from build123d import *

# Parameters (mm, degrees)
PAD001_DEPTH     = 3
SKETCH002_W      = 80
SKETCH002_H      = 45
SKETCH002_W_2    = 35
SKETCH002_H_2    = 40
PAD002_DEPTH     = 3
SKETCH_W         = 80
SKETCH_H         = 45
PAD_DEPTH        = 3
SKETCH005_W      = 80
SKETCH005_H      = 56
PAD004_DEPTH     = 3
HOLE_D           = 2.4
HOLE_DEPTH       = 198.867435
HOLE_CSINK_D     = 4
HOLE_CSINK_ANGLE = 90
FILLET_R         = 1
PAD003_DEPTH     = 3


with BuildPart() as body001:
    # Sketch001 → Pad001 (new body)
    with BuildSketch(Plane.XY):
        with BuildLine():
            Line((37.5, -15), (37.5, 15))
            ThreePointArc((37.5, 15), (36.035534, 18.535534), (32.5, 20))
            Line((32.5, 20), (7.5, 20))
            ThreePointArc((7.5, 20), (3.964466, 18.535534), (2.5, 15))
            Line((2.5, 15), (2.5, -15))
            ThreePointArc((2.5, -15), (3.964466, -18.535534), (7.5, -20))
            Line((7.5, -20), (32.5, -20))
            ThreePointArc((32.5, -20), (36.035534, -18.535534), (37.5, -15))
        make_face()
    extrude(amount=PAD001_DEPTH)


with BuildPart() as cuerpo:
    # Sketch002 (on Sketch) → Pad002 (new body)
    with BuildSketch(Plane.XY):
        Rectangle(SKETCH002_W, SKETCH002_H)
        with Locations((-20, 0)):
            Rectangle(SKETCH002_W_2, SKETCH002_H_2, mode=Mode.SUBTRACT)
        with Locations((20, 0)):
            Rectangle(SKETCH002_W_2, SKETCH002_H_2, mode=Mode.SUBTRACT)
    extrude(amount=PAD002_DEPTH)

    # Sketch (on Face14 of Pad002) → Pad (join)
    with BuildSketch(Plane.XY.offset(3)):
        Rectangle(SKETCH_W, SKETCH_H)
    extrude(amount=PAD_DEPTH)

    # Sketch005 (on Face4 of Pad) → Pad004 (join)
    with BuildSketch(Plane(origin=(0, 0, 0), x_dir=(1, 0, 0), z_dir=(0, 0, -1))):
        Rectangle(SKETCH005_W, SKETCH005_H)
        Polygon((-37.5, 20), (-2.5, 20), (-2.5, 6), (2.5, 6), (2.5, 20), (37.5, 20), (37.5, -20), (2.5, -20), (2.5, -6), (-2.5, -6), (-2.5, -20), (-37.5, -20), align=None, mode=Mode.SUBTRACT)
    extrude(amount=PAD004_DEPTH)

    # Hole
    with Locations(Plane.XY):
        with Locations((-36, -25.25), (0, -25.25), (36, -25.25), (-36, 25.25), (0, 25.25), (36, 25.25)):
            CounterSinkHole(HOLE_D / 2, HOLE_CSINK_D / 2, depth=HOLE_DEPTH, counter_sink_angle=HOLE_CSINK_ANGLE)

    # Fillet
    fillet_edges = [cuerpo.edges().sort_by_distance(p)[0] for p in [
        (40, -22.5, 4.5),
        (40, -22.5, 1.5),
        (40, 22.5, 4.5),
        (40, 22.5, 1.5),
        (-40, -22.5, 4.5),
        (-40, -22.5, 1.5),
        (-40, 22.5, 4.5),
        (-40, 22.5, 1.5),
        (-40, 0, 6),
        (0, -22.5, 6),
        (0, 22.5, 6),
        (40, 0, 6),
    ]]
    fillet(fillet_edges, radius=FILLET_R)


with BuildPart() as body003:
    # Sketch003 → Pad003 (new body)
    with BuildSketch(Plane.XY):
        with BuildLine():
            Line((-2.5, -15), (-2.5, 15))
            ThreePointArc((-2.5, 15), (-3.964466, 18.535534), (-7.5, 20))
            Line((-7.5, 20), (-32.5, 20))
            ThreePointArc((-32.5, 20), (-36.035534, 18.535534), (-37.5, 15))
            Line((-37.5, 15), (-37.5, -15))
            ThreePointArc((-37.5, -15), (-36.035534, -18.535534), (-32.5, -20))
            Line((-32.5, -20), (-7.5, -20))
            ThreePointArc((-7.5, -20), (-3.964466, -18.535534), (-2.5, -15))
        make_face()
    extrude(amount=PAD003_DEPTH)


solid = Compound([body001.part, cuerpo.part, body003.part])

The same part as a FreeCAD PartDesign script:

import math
import FreeCAD as App
import Part
import Sketcher
from FreeCAD import Vector


def edges_at(feature, points):
    """Names of the edges that pass closest to the given points."""
    edges = feature.Shape.Edges
    near = lambda p: min(range(len(edges)), key=lambda i: edges[i].distToShape(Part.Vertex(*p))[0])
    return sorted({f"Edge{near(p) + 1}" for p in points})


def add_polygon(sketch, points):
    """Adds a closed chain of lines whose ends are joined by coincident constraints."""
    first, n = sketch.GeometryCount, len(points)
    for a, b in zip(points, points[1:] + points[:1]):
        sketch.addGeometry(Part.LineSegment(App.Vector(*a, 0), App.Vector(*b, 0)), False)
    for i in range(n):
        sketch.addConstraint(Sketcher.Constraint("Coincident", first + i, 2, first + (i + 1) % n, 1))

doc = App.newDocument("Part")
params = doc.addObject("Spreadsheet::Sheet", "Params")
for row, (alias, value) in enumerate([
    ("sketch1_radius", "5 mm"),
    ("sketch1_width", "25 mm"),
    ("sketch1_height", "30 mm"),
    ("pad1_length", "3 mm"),
    ("sketch2_width", "80 mm"),
    ("sketch2_width2", "35 mm"),
    ("sketch2_height", "45 mm"),
    ("sketch2_height2", "40 mm"),
    ("pad2_length", "3 mm"),
    ("sketch3_width", "80 mm"),
    ("sketch3_height", "45 mm"),
    ("pad3_length", "3 mm"),
    ("sketch4_width", "80 mm"),
    ("sketch4_width2", "35 mm"),
    ("sketch4_width3", "5 mm"),
    ("sketch4_height", "56 mm"),
    ("sketch4_height2", "40 mm"),
    ("pad4_length", "3 mm"),
    ("sketch5_diameter", "2.4 mm"),
    ("hole_diameter", "2.4 mm"),
    ("hole_depth", "198.867435 mm"),
    ("hole_csink_diameter", "4 mm"),
    ("fillet_radius", "1 mm"),
    ("sketch6_radius", "5 mm"),
    ("sketch6_width", "25 mm"),
    ("sketch6_height", "30 mm"),
    ("pad5_length", "3 mm"),
], start=1):
    params.set(f"A{row}", alias)
    params.set(f"B{row}", "=" + value)
    params.setAlias(f"B{row}", alias)

body = doc.addObject("PartDesign::Body", "Body")

# Sketch on XY plane
sketch1 = doc.addObject("Sketcher::SketchObject", "Sketch")
body.addObject(sketch1)
sketch1.AttachmentSupport = (doc.XY_Plane, [""])
sketch1.MapMode = "FlatFace"
sketch1.addGeometry([
    Part.LineSegment(Vector(37.5, -15, 0), Vector(37.5, 15, 0)),  # 0
    Part.ArcOfCircle(Part.Circle(Vector(32.5, 15, 0), Vector(0, 0, 1), 5), math.radians(0), math.radians(90)),  # 1
    Part.LineSegment(Vector(32.5, 20, 0), Vector(7.5, 20, 0)),  # 2
    Part.ArcOfCircle(Part.Circle(Vector(7.5, 15, 0), Vector(0, 0, 1), 5), math.radians(90), math.radians(180)),  # 3
    Part.LineSegment(Vector(2.5, 15, 0), Vector(2.5, -15, 0)),  # 4
    Part.ArcOfCircle(Part.Circle(Vector(7.5, -15, 0), Vector(0, 0, 1), 5), math.radians(180), math.radians(270)),  # 5
    Part.LineSegment(Vector(7.5, -20, 0), Vector(32.5, -20, 0)),  # 6
    Part.ArcOfCircle(Part.Circle(Vector(32.5, -15, 0), Vector(0, 0, 1), 5), math.radians(-90), math.radians(0)),  # 7
], False)
sketch1.addConstraint([
    Sketcher.Constraint("Tangent", 0, 2, 1, 1),
    Sketcher.Constraint("Tangent", 1, 2, 2, 1),
    Sketcher.Constraint("Tangent", 2, 2, 3, 1),
    Sketcher.Constraint("Tangent", 3, 2, 4, 1),
    Sketcher.Constraint("Tangent", 4, 2, 5, 1),
    Sketcher.Constraint("Tangent", 5, 2, 6, 1),
    Sketcher.Constraint("Tangent", 6, 2, 7, 1),
    Sketcher.Constraint("Tangent", 7, 2, 0, 1),
    Sketcher.Constraint("Vertical", 0),
    Sketcher.Constraint("Horizontal", 2),
    Sketcher.Constraint("Vertical", 4),
    Sketcher.Constraint("Horizontal", 6),
    Sketcher.Constraint("Equal", 1, 3),
    Sketcher.Constraint("Equal", 3, 5),
    Sketcher.Constraint("Equal", 5, 7),
    Sketcher.Constraint("Radius", 1, 5.0),
    Sketcher.Constraint("DistanceX", 2, 2, 2, 1, 25.0),
    Sketcher.Constraint("DistanceY", 0, 1, 0, 2, 30.0),
    Sketcher.Constraint("DistanceY", -1, 1, 1, 3, 15.0),
    Sketcher.Constraint("DistanceX", -1, 1, 1, 3, 32.5),
])
sketch1.setExpression("Constraints[15]", "Params.sketch1_radius")
sketch1.setExpression("Constraints[16]", "Params.sketch1_width")
sketch1.setExpression("Constraints[17]", "Params.sketch1_height")
pad1 = doc.addObject("PartDesign::Pad", "Pad")
body.addObject(pad1)
pad1.Profile = sketch1
pad1.setExpression("Length", "Params.pad1_length")
body2 = doc.addObject("PartDesign::Body", "Body001")

# Sketch on XY plane
sketch2 = doc.addObject("Sketcher::SketchObject", "Sketch001")
body2.addObject(sketch2)
sketch2.AttachmentSupport = (doc.getObject("XY_Plane001"), [""])
sketch2.MapMode = "FlatFace"
add_polygon(sketch2, [(-40, 22), (-40, -22), (40, -22), (40, 22)])  # lines 0-3
add_polygon(sketch2, [(-2, -20), (-38, -20), (-38, 20), (-2, 20)])  # lines 4-7
add_polygon(sketch2, [(38, -20), (2, -20), (2, 20), (38, 20)])  # lines 8-11
sketch2.addConstraint([
    Sketcher.Constraint("Vertical", 0),
    Sketcher.Constraint("Horizontal", 1),
    Sketcher.Constraint("Vertical", 2),
    Sketcher.Constraint("Horizontal", 3),
    Sketcher.Constraint("Horizontal", 4),
    Sketcher.Constraint("Vertical", 5),
    Sketcher.Constraint("Horizontal", 6),
    Sketcher.Constraint("Vertical", 7),
    Sketcher.Constraint("Horizontal", 8),
    Sketcher.Constraint("Vertical", 9),
    Sketcher.Constraint("Horizontal", 10),
    Sketcher.Constraint("Vertical", 11),
    Sketcher.Constraint("Symmetric", 0, 2, 2, 2, -1, 1),
    Sketcher.Constraint("Symmetric", 6, 2, 8, 2, -1, 1),
    Sketcher.Constraint("Symmetric", 4, 2, 10, 2, -1, 1),
    Sketcher.Constraint("Horizontal", 7, 2, 8, 2),
    Sketcher.Constraint("DistanceX", 1, 1, 1, 2, 80.0),
    Sketcher.Constraint("DistanceX", 4, 2, 4, 1, 35.0),
    Sketcher.Constraint("DistanceY", 0, 2, 0, 1, 45.0),
    Sketcher.Constraint("DistanceY", 5, 1, 5, 2, 40.0),
    Sketcher.Constraint("DistanceX", 7, 2, 8, 2, 5.0),
])
sketch2.setExpression("Constraints[28]", "Params.sketch2_width")
sketch2.setExpression("Constraints[29]", "Params.sketch2_width2")
sketch2.setExpression("Constraints[30]", "Params.sketch2_height")
sketch2.setExpression("Constraints[31]", "Params.sketch2_height2")
pad2 = doc.addObject("PartDesign::Pad", "Pad001")
body2.addObject(pad2)
pad2.Profile = sketch2
pad2.setExpression("Length", "Params.pad2_length")

# Sketch on XY plane
sketch3 = doc.addObject("Sketcher::SketchObject", "Sketch002")
body2.addObject(sketch3)
sketch3.AttachmentSupport = (doc.getObject("XY_Plane001"), [""])
sketch3.MapMode = "FlatFace"
sketch3.AttachmentOffset = App.Placement(Vector(0, 0, 3), App.Rotation())
add_polygon(sketch3, [(-40, 22), (-40, -22), (40, -22), (40, 22)])  # lines 0-3
sketch3.addConstraint([
    Sketcher.Constraint("Vertical", 0),
    Sketcher.Constraint("Horizontal", 1),
    Sketcher.Constraint("Vertical", 2),
    Sketcher.Constraint("Horizontal", 3),
    Sketcher.Constraint("Symmetric", 0, 2, 2, 2, -1, 1),
    Sketcher.Constraint("DistanceX", 1, 1, 1, 2, 80.0),
    Sketcher.Constraint("DistanceY", 0, 2, 0, 1, 45.0),
])
sketch3.setExpression("Constraints[9]", "Params.sketch3_width")
sketch3.setExpression("Constraints[10]", "Params.sketch3_height")
pad3 = doc.addObject("PartDesign::Pad", "Pad002")
body2.addObject(pad3)
pad3.Profile = sketch3
pad3.setExpression("Length", "Params.pad3_length")

# Sketch on XY plane
sketch4 = doc.addObject("Sketcher::SketchObject", "Sketch003")
body2.addObject(sketch4)
sketch4.AttachmentSupport = (doc.getObject("XY_Plane001"), [""])
sketch4.MapMode = "FlatFace"
add_polygon(sketch4, [(-40, -28), (-40, 28), (40, 28), (40, -28)])  # lines 0-3
add_polygon(sketch4, [(-38, 20), (-38, -20), (-2, -20), (-2, -6), (2, -6), (2, -20), (38, -20), (38, 20), (2, 20), (2, 6), (-2, 6), (-2, 20)])  # lines 4-15
sketch4.addConstraint([
    Sketcher.Constraint("Vertical", 0),
    Sketcher.Constraint("Horizontal", 1),
    Sketcher.Constraint("Vertical", 2),
    Sketcher.Constraint("Horizontal", 3),
    Sketcher.Constraint("Vertical", 4),
    Sketcher.Constraint("Horizontal", 5),
    Sketcher.Constraint("Vertical", 6),
    Sketcher.Constraint("Horizontal", 7),
    Sketcher.Constraint("Vertical", 8),
    Sketcher.Constraint("Horizontal", 9),
    Sketcher.Constraint("Vertical", 10),
    Sketcher.Constraint("Horizontal", 11),
    Sketcher.Constraint("Vertical", 12),
    Sketcher.Constraint("Horizontal", 13),
    Sketcher.Constraint("Vertical", 14),
    Sketcher.Constraint("Horizontal", 15),
    Sketcher.Constraint("Symmetric", 0, 2, 2, 2, -1, 1),
    Sketcher.Constraint("Symmetric", 4, 2, 10, 2, -1, 1),
    Sketcher.Constraint("Symmetric", 6, 2, 12, 2, -1, 1),
    Sketcher.Constraint("Symmetric", 8, 2, 14, 2, -1, 1),
    Sketcher.Constraint("Symmetric", 5, 2, 8, 2, -2),
    Sketcher.Constraint("DistanceX", 1, 1, 1, 2, 80.0),
    Sketcher.Constraint("DistanceX", 5, 1, 5, 2, 35.0),
    Sketcher.Constraint("DistanceX", 7, 1, 7, 2, 5.0),
    Sketcher.Constraint("DistanceY", 0, 1, 0, 2, 56.0),
    Sketcher.Constraint("DistanceY", 4, 2, 4, 1, 40.0),
    Sketcher.Constraint("DistanceY", 6, 1, 6, 2, 14.0),
])
sketch4.setExpression("Constraints[37]", "Params.sketch4_width")
sketch4.setExpression("Constraints[38]", "Params.sketch4_width2")
sketch4.setExpression("Constraints[39]", "Params.sketch4_width3")
sketch4.setExpression("Constraints[40]", "Params.sketch4_height")
sketch4.setExpression("Constraints[41]", "Params.sketch4_height2")
pad4 = doc.addObject("PartDesign::Pad", "Pad003")
body2.addObject(pad4)
pad4.Profile = sketch4
pad4.setExpression("Length", "Params.pad4_length")
pad4.Reversed = True

# Sketch on XY plane
sketch5 = doc.addObject("Sketcher::SketchObject", "Sketch004")
body2.addObject(sketch5)
sketch5.AttachmentSupport = (doc.getObject("XY_Plane001"), [""])
sketch5.MapMode = "FlatFace"
sketch5.addGeometry([
    Part.Circle(Vector(-36, -25.2, 0), Vector(0, 0, 1), 1.2),  # 0
    Part.Circle(Vector(0, -25.2, 0), Vector(0, 0, 1), 1.2),  # 1
    Part.Circle(Vector(36, -25.2, 0), Vector(0, 0, 1), 1.2),  # 2
    Part.Circle(Vector(-36, 25.2, 0), Vector(0, 0, 1), 1.2),  # 3
    Part.Circle(Vector(0, 25.2, 0), Vector(0, 0, 1), 1.2),  # 4
    Part.Circle(Vector(36, 25.2, 0), Vector(0, 0, 1), 1.2),  # 5
], False)
sketch5.addConstraint([
    Sketcher.Constraint("Equal", 0, 1),
    Sketcher.Constraint("Equal", 1, 2),
    Sketcher.Constraint("Equal", 2, 3),
    Sketcher.Constraint("Equal", 3, 4),
    Sketcher.Constraint("Equal", 4, 5),
    Sketcher.Constraint("Symmetric", 2, 3, 3, 3, -1, 1),
    Sketcher.Constraint("Symmetric", 1, 3, 4, 3, -1, 1),
    Sketcher.Constraint("Symmetric", 0, 3, 5, 3, -1, 1),
    Sketcher.Constraint("Symmetric", 0, 3, 2, 3, -2),
    Sketcher.Constraint("PointOnObject", 1, 3, -2),
    Sketcher.Constraint("Horizontal", 0, 3, 1, 3),
    Sketcher.Constraint("Diameter", 0, 2.4),
    Sketcher.Constraint("DistanceX", 0, 3, -1, 1, 36.0),
    Sketcher.Constraint("DistanceY", 0, 3, 3, 3, 50.5),
])
sketch5.setExpression("Constraints[11]", "Params.sketch5_diameter")
doc.recompute()
hole = doc.addObject("PartDesign::Hole", "Hole")
body2.addObject(hole)
hole.Profile = sketch5
hole.ThreadType = "None"
hole.setExpression("Diameter", "Params.hole_diameter")
hole.DepthType = "Dimension"
hole.setExpression("Depth", "Params.hole_depth")
hole.DrillPoint = "Flat"
hole.HoleCutType = "Countersink"
hole.setExpression("HoleCutDiameter", "Params.hole_csink_diameter")
hole.HoleCutCountersinkAngle = 90
doc.recompute()

fillet = doc.addObject("PartDesign::Fillet", "Fillet")
body2.addObject(fillet)
fillet.Base = (hole, edges_at(hole, [
    (40, -22.5, 3),
    (40, -22.5, 3),
    (40, 22.5, 3),
    (40, 22.5, 3),
    (-40, -22.5, 3),
    (-40, -22.5, 3),
    (-40, 22.5, 3),
    (-40, 22.5, 3),
    (-40, 0, 6),
    (0, -22.5, 6),
    (0, 22.5, 6),
    (40, 0, 6),
]))
fillet.setExpression("Radius", "Params.fillet_radius")
body3 = doc.addObject("PartDesign::Body", "Body002")

# Sketch on XY plane
sketch6 = doc.addObject("Sketcher::SketchObject", "Sketch005")
body3.addObject(sketch6)
sketch6.AttachmentSupport = (doc.getObject("XY_Plane002"), [""])
sketch6.MapMode = "FlatFace"
sketch6.addGeometry([
    Part.LineSegment(Vector(-2.5, -15, 0), Vector(-2.5, 15, 0)),  # 0
    Part.ArcOfCircle(Part.Circle(Vector(-7.5, 15, 0), Vector(0, 0, 1), 5), math.radians(0), math.radians(90)),  # 1
    Part.LineSegment(Vector(-7.5, 20, 0), Vector(-32.5, 20, 0)),  # 2
    Part.ArcOfCircle(Part.Circle(Vector(-32.5, 15, 0), Vector(0, 0, 1), 5), math.radians(90), math.radians(180)),  # 3
    Part.LineSegment(Vector(-37.5, 15, 0), Vector(-37.5, -15, 0)),  # 4
    Part.ArcOfCircle(Part.Circle(Vector(-32.5, -15, 0), Vector(0, 0, 1), 5), math.radians(180), math.radians(270)),  # 5
    Part.LineSegment(Vector(-32.5, -20, 0), Vector(-7.5, -20, 0)),  # 6
    Part.ArcOfCircle(Part.Circle(Vector(-7.5, -15, 0), Vector(0, 0, 1), 5), math.radians(-90), math.radians(0)),  # 7
], False)
sketch6.addConstraint([
    Sketcher.Constraint("Tangent", 0, 2, 1, 1),
    Sketcher.Constraint("Tangent", 1, 2, 2, 1),
    Sketcher.Constraint("Tangent", 2, 2, 3, 1),
    Sketcher.Constraint("Tangent", 3, 2, 4, 1),
    Sketcher.Constraint("Tangent", 4, 2, 5, 1),
    Sketcher.Constraint("Tangent", 5, 2, 6, 1),
    Sketcher.Constraint("Tangent", 6, 2, 7, 1),
    Sketcher.Constraint("Tangent", 7, 2, 0, 1),
    Sketcher.Constraint("Vertical", 0),
    Sketcher.Constraint("Horizontal", 2),
    Sketcher.Constraint("Vertical", 4),
    Sketcher.Constraint("Horizontal", 6),
    Sketcher.Constraint("Equal", 1, 3),
    Sketcher.Constraint("Equal", 3, 5),
    Sketcher.Constraint("Equal", 5, 7),
    Sketcher.Constraint("Radius", 1, 5.0),
    Sketcher.Constraint("DistanceX", 2, 2, 2, 1, 25.0),
    Sketcher.Constraint("DistanceY", 0, 1, 0, 2, 30.0),
    Sketcher.Constraint("DistanceY", -1, 1, 1, 3, 15.0),
    Sketcher.Constraint("DistanceX", 1, 3, -1, 1, 7.5),
])
sketch6.setExpression("Constraints[15]", "Params.sketch6_radius")
sketch6.setExpression("Constraints[16]", "Params.sketch6_width")
sketch6.setExpression("Constraints[17]", "Params.sketch6_height")
pad5 = doc.addObject("PartDesign::Pad", "Pad004")
body3.addObject(pad5)
pad5.Profile = sketch6
pad5.setExpression("Length", "Params.pad5_length")

doc.recompute()
